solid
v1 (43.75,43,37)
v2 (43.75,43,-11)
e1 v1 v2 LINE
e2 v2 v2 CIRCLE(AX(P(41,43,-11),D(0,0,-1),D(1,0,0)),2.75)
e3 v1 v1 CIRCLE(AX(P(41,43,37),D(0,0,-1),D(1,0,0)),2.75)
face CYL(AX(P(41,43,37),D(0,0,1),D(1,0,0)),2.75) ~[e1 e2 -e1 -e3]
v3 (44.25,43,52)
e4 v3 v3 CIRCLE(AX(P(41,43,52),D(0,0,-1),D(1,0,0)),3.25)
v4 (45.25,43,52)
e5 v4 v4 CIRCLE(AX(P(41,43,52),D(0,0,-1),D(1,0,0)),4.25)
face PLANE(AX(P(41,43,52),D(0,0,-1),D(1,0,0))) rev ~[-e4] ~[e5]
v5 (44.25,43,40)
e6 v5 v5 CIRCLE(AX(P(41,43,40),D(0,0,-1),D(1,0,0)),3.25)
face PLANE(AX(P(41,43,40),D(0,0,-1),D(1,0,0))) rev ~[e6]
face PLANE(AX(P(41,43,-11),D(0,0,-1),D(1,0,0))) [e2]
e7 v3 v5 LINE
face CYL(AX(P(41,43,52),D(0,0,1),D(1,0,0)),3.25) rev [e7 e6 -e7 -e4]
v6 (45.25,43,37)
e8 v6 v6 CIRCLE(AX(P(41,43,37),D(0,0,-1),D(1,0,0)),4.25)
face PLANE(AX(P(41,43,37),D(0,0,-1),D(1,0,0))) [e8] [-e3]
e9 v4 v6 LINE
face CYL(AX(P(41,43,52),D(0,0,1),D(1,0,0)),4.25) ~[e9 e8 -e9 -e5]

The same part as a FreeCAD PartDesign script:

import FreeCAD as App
import Part
import Sketcher
from FreeCAD import Vector
Q = App.Units.Quantity

doc = App.newDocument("Part")
body = doc.addObject("PartDesign::Body", "Body")

sketch1 = body.newObject("Sketcher::SketchObject", "Sketch")
sketch1.AttachmentSupport = (doc.getObject("XY_Plane"), [""])
sketch1.MapMode = "FlatFace"
sketch1.addGeometry(Part.Circle(Vector(0, 0, 0), Vector(0, 0, 1), 3.2), False)
sketch1.addConstraint([
    Sketcher.Constraint("Coincident", 0, 3, -1, 1),
    Sketcher.Constraint("Diameter", 0, Q("6.5 mm")),
])
pad1 = body.newObject("PartDesign::Pad", "Pad")
pad1.Profile = sketch1
pad1.Length = 12
body2 = doc.addObject("PartDesign::Body", "Body001")

sketch2 = body2.newObject("Sketcher::SketchObject", "Sketch001")
sketch2.AttachmentSupport = (doc.getObject("XY_Plane001"), [""])
sketch2.MapMode = "FlatFace"
sketch2.addGeometry(Part.Circle(Vector(0, 0, 0), Vector(0, 0, 1), 4.2), False)
sketch2.addConstraint([
    Sketcher.Constraint("Coincident", 0, 3, -1, 1),
    Sketcher.Constraint("Diameter", 0, Q("8.5 mm")),
])
pad2 = body2.newObject("PartDesign::Pad", "Pad001")
pad2.Profile = sketch2
pad2.Length = 15
doc.recompute()

boolean = body2.newObject("PartDesign::Boolean", "Boolean")
boolean.Type = "Cut"
boolean.addObjects([body])
body3 = doc.addObject("PartDesign::Body", "Body002")

sketch3 = body3.newObject("Sketcher::SketchObject", "Sketch002")
sketch3.AttachmentSupport = (doc.getObject("XY_Plane002"), [""])
sketch3.MapMode = "FlatFace"
sketch3.AttachmentOffset = App.Placement(Vector(0, 0, 15), App.Rotation())
sketch3.addGeometry(Part.Circle(Vector(0, 0, 0), Vector(0, 0, 1), 2.8), False)
sketch3.addConstraint([
    Sketcher.Constraint("Coincident", 0, 3, -1, 1),
    Sketcher.Constraint("Diameter", 0, Q("5.5 mm")),
])
pad3 = body3.newObject("PartDesign::Pad", "Pad002")
pad3.Profile = sketch3
pad3.Length = 48
doc.recompute()

boolean2 = body3.newObject("PartDesign::Boolean", "Boolean001")
boolean2.Type = "Fuse"
boolean2.addObjects([body2])
body4 = doc.addObject("PartDesign::Body", "Body003")
doc.recompute()

body3.Placement = App.Placement(Vector(41, 43, 52), App.Rotation(Vector(1, 0, 0), 180))
boolean3 = body4.newObject("PartDesign::Boolean", "Boolean002")
boolean3.Type = "Fuse"
boolean3.addObjects([body3])

doc.recompute()
